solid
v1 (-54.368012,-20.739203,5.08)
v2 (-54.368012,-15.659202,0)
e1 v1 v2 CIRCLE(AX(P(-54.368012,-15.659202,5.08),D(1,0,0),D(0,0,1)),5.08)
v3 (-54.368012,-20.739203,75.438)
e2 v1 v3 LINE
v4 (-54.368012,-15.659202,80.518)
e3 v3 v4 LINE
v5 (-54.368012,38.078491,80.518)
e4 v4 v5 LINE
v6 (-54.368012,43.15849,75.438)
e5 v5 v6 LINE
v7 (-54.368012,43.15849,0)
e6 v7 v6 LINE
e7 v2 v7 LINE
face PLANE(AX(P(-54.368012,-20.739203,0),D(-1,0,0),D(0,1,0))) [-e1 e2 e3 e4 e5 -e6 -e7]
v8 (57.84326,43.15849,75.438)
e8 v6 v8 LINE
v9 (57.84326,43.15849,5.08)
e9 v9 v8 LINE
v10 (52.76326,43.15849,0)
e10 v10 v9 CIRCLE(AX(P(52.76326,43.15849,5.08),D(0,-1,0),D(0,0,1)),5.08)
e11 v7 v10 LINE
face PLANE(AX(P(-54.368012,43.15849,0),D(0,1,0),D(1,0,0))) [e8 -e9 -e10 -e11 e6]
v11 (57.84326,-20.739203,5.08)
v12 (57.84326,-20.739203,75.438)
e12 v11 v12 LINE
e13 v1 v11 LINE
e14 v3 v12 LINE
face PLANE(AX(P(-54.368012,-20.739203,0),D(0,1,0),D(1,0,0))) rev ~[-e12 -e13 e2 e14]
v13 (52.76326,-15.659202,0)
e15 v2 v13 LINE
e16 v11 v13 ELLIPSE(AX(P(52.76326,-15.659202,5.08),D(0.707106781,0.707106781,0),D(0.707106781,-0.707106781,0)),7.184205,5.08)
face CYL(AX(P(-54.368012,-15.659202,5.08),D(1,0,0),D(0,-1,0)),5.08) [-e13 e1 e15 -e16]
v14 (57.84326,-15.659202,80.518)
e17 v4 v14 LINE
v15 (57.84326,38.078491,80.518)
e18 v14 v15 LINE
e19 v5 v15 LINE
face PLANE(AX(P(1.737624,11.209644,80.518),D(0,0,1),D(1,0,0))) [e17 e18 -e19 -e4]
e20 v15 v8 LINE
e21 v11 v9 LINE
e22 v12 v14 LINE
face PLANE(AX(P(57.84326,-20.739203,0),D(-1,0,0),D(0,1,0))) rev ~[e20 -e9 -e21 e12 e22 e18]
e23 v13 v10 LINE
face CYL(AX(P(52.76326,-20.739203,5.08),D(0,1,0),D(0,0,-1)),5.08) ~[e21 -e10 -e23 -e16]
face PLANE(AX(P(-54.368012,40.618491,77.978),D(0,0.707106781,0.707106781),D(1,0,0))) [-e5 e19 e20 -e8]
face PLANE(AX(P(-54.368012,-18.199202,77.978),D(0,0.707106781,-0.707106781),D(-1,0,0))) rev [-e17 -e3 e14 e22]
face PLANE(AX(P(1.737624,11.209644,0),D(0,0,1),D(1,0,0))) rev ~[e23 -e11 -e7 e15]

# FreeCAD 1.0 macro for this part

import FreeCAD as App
import Part
import Sketcher
Q = App.Units.Quantity


def edges_at(feature, points):
    """Names of the edges that pass closest to the given points."""
    edges = feature.Shape.Edges
    near = lambda p: min(range(len(edges)), key=lambda i: edges[i].distToShape(Part.Vertex(*p))[0])
    return sorted({f"Edge{near(p) + 1}" for p in points})


def add_polygon(sketch, points):
    """Adds a closed chain of lines whose ends are joined by coincident constraints."""
    first, n = sketch.GeometryCount, len(points)
    for a, b in zip(points, points[1:] + points[:1]):
        sketch.addGeometry(Part.LineSegment(App.Vector(*a, 0), App.Vector(*b, 0)), False)
    for i in range(n):
        sketch.addConstraint(Sketcher.Constraint("Coincident", first + i, 2, first + (i + 1) % n, 1))

doc = App.newDocument("Part")
params = doc.addObject("Spreadsheet::Sheet", "Params")
for row, (alias, value) in enumerate([
    ("pad1_length", "3.17 in"),
    ("chamfer_size", "0.2 in"),
    ("chamfer2_size", "0.2 in"),
    ("fillet_radius", "0.2 in"),
], start=1):
    params.set(f"A{row}", alias)
    params.set(f"B{row}", "=" + value)
    params.setAlias(f"B{row}", alias)

body = doc.addObject("PartDesign::Body", "Body")

# Sketch on XY plane
sketch1 = doc.addObject("Sketcher::SketchObject", "Sketch")
body.addObject(sketch1)
sketch1.AttachmentSupport = (doc.XY_Plane, [""])
sketch1.MapMode = "FlatFace"
add_polygon(sketch1, [(-54, 43), (-54, -21), (58, -21), (58, 43)])  # lines 0-3
sketch1.addConstraint([
    Sketcher.Constraint("Vertical", 0),
    Sketcher.Constraint("Horizontal", 1),
    Sketcher.Constraint("Vertical", 2),
    Sketcher.Constraint("Horizontal", 3),
    Sketcher.Constraint("DistanceX", 1, 1, 1, 2, Q("112.211272 mm")),
    Sketcher.Constraint("DistanceY", 0, 2, 0, 1, Q("63.897693 mm")),
    Sketcher.Constraint("DistanceX", -1, 1, 1, 2, Q("57.84326 mm")),
    Sketcher.Constraint("DistanceY", -1, 1, 2, 2, Q("43.15849 mm")),
])
pad1 = doc.addObject("PartDesign::Pad", "Pad")
body.addObject(pad1)
pad1.Profile = sketch1
pad1.setExpression("Length", "Params.pad1_length")
doc.recompute()

chamfer = doc.addObject("PartDesign::Chamfer", "Chamfer")
body.addObject(chamfer)
chamfer.Base = (pad1, edges_at(pad1, [(1.738, -20.739, 80.518)]))
chamfer.setExpression("Size", "Params.chamfer_size")
doc.recompute()

chamfer2 = doc.addObject("PartDesign::Chamfer", "Chamfer001")
body.addObject(chamfer2)
chamfer2.Base = (chamfer, edges_at(chamfer, [(1.738, 43.158, 80.518)]))
chamfer2.setExpression("Size", "Params.chamfer2_size")
doc.recompute()

fillet = doc.addObject("PartDesign::Fillet", "Fillet")
body.addObject(fillet)
fillet.Base = (chamfer2, edges_at(chamfer2, [(1.738, -20.739, 0), (57.843, 11.21, 0)]))
fillet.setExpression("Radius", "Params.fillet_radius")

doc.recompute()
